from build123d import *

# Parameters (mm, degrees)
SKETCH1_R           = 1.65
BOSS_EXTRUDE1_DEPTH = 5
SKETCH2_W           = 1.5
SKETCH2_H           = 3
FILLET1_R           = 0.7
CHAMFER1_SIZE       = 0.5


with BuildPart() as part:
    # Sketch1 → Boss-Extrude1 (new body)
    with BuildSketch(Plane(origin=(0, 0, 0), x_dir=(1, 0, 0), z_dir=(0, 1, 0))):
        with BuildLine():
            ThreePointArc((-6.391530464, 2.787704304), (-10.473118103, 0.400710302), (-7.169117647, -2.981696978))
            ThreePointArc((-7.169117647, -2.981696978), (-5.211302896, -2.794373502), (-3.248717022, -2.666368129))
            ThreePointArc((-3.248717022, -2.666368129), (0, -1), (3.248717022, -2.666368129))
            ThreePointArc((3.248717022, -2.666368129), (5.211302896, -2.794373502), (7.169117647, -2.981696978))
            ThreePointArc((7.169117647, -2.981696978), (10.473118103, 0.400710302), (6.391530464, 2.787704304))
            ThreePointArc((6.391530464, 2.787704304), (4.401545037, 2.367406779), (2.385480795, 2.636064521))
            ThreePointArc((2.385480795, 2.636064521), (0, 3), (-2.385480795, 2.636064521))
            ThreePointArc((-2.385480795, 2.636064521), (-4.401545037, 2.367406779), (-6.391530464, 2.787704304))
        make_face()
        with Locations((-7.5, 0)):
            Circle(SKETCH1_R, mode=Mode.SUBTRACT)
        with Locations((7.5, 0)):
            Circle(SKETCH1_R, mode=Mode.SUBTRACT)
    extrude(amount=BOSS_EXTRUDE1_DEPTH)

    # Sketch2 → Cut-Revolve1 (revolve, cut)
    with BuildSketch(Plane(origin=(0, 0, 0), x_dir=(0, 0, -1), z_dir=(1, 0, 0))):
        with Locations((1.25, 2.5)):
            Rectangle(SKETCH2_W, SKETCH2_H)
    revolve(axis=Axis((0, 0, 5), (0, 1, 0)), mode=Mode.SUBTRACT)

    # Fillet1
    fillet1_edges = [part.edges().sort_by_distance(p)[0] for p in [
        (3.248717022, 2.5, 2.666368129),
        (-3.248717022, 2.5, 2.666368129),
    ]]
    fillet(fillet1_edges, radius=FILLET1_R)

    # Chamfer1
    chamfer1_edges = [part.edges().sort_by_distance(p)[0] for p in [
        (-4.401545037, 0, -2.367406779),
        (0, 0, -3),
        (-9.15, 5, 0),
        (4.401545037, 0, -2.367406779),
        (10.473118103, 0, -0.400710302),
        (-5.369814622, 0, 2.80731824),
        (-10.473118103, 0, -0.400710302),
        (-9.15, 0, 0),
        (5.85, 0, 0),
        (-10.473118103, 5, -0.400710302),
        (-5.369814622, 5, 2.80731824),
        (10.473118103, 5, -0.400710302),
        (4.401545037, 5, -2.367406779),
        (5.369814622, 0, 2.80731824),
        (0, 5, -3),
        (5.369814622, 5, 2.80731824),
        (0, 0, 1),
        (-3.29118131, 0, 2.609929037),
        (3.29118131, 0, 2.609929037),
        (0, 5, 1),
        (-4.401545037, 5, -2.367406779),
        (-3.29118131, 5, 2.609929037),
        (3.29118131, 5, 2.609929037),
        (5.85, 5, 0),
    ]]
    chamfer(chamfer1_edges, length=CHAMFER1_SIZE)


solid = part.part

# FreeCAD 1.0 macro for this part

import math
import FreeCAD as App
import Part
import Sketcher

V = App.Vector


def edges_at(feature, points):
    """Names of the edges that pass closest to the given points."""
    edges = feature.Shape.Edges
    near = lambda p: min(range(len(edges)), key=lambda i: edges[i].distToShape(Part.Vertex(*p))[0])
    return sorted({f"Edge{near(p) + 1}" for p in points})

doc = App.newDocument("Part")
params = doc.addObject("Spreadsheet::Sheet", "Params")
for row, (alias, value) in enumerate([
    ("sketch1_radius", "3 mm"),
    ("sketch1_radius2", "65.000001 mm"),
    ("sketch1_radius3", "4 mm"),
    ("sketch1_radius4", "6 mm"),
    ("sketch1_radius5", "8 mm"),
    ("pad1_length", "5 mm"),
    ("sketch2_width", "3 mm"),
    ("sketch2_height", "1.5 mm"),
    ("groove_angle", "360 deg"),
    ("fillet_radius", "0.7 mm"),
    ("chamfer_size", "0.5 mm"),
], start=1):
    params.set(f"A{row}", alias)
    params.set(f"B{row}", "=" + value)
    params.setAlias(f"B{row}", alias)

body = doc.addObject("PartDesign::Body", "Body")

sketch1 = body.newObject("Sketcher::SketchObject", "Sketch")
sketch1.AttachmentSupport = (doc.getObject("XZ_Plane"), [""])
sketch1.MapMode = "FlatFace"
sketch1.addGeometry(Part.ArcOfCircle(Part.Circle(V(-7.5, 0, 0), V(0, 0, 1), 3), math.radians(83.66773), math.radians(291.684158)), False)
sketch1.addGeometry(Part.ArcOfCircle(Part.Circle(V(0, 67.585133, 0), V(0, 0, 1), 65.000001), math.radians(-96.33227), math.radians(-92.864852)), False)
sketch1.addGeometry(Part.ArcOfCircle(Part.Circle(V(0, 5, 0), V(0, 0, 1), 4), math.radians(-144.3094), math.radians(-35.6906)), False)
sketch1.addGeometry(Part.ArcOfCircle(Part.Circle(V(0, 67.585133, 0), V(0, 0, 1), 65.000001), math.radians(-87.135148), math.radians(-83.66773)), False)
sketch1.addGeometry(Part.ArcOfCircle(Part.Circle(V(7.5, 0, 0), V(0, 0, 1), 3), math.radians(-111.684158), math.radians(96.33227)), False)
sketch1.addGeometry(Part.ArcOfCircle(Part.Circle(V(4.174591, -8.363113, 0), V(0, 0, 1), 6), math.radians(68.315842), math.radians(107.348629)), False)
sketch1.addGeometry(Part.ArcOfCircle(Part.Circle(V(0, 5, 0), V(0, 0, 1), 8), math.radians(-107.348629), math.radians(-72.651371)), False)
sketch1.addGeometry(Part.ArcOfCircle(Part.Circle(V(-4.174591, -8.363113, 0), V(0, 0, 1), 6), math.radians(72.651371), math.radians(111.684158)), False)
sketch1.addGeometry(Part.Circle(V(-7.5, 0, 0), V(0, 0, 1), 1.65), False)
sketch1.addGeometry(Part.Circle(V(7.5, 0, 0), V(0, 0, 1), 1.65), False)
sketch1.addConstraint(Sketcher.Constraint("Tangent", 0, 1, 1, 1))
sketch1.addConstraint(Sketcher.Constraint("Coincident", 1, 2, 2, 1))
sketch1.addConstraint(Sketcher.Constraint("Coincident", 2, 2, 3, 1))
sketch1.addConstraint(Sketcher.Constraint("Tangent", 3, 2, 4, 2))
sketch1.addConstraint(Sketcher.Constraint("Tangent", 4, 1, 5, 1))
sketch1.addConstraint(Sketcher.Constraint("Tangent", 5, 2, 6, 2))
sketch1.addConstraint(Sketcher.Constraint("Tangent", 6, 1, 7, 1))
sketch1.addConstraint(Sketcher.Constraint("Tangent", 7, 2, 0, 2))
sketch1.addConstraint(Sketcher.Constraint("Coincident", 3, 3, 1, 3))
sketch1.addConstraint(Sketcher.Constraint("Coincident", 6, 3, 2, 3))
sketch1.addConstraint(Sketcher.Constraint("Coincident", 8, 3, 0, 3))
sketch1.addConstraint(Sketcher.Constraint("Coincident", 9, 3, 4, 3))
sketch1.addConstraint(Sketcher.Constraint("Equal", 1, 3))
sketch1.addConstraint(Sketcher.Constraint("Equal", 0, 4))
sketch1.addConstraint(Sketcher.Constraint("Equal", 5, 7))
sketch1.addConstraint(Sketcher.Constraint("Equal", 8, 9))
sketch1.addConstraint(Sketcher.Constraint("Symmetric", 0, 3, 4, 3, -1, 1))
sketch1.addConstraint(Sketcher.Constraint("Symmetric", 5, 3, 7, 3, -2))
sketch1.addConstraint(Sketcher.Constraint("Radius", 0, 3.0))
sketch1.addConstraint(Sketcher.Constraint("Radius", 1, 65.000001))
sketch1.addConstraint(Sketcher.Constraint("Radius", 2, 4.0))
sketch1.addConstraint(Sketcher.Constraint("Radius", 5, 6.0))
sketch1.addConstraint(Sketcher.Constraint("Radius", 6, 8.0))
sketch1.addConstraint(Sketcher.Constraint("Diameter", 8, 3.3))
sketch1.addConstraint(Sketcher.Constraint("DistanceY", -1, 1, 2, 3, 5.0))
sketch1.addConstraint(Sketcher.Constraint("DistanceX", 0, 3, 4, 3, 15.0))
sketch1.setExpression("Constraints[18]", "Params.sketch1_radius")
sketch1.setExpression("Constraints[19]", "Params.sketch1_radius2")
sketch1.setExpression("Constraints[20]", "Params.sketch1_radius3")
sketch1.setExpression("Constraints[21]", "Params.sketch1_radius4")
sketch1.setExpression("Constraints[22]", "Params.sketch1_radius5")
pad1 = body.newObject("PartDesign::Pad", "Pad")
pad1.Profile = sketch1
pad1.setExpression("Length", "Params.pad1_length")
pad1.Reversed = True

sketch2 = body.newObject("Sketcher::SketchObject", "Sketch001")
sketch2.AttachmentSupport = (doc.getObject("YZ_Plane"), [""])
sketch2.MapMode = "FlatFace"
sketch2.addGeometry(Part.LineSegment(V(4, -0.5, 0), V(1, -0.5, 0)), False)
sketch2.addGeometry(Part.LineSegment(V(1, -0.5, 0), V(1, -2, 0)), False)
sketch2.addGeometry(Part.LineSegment(V(1, -2, 0), V(4, -2, 0)), False)
sketch2.addGeometry(Part.LineSegment(V(4, -2, 0), V(4, -0.5, 0)), False)
sketch2.addGeometry(Part.LineSegment(V(1, 5, 0), V(4, 5, 0)), True)
sketch2.addConstraint(Sketcher.Constraint("Coincident", 0, 2, 1, 1))
sketch2.addConstraint(Sketcher.Constraint("Coincident", 1, 2, 2, 1))
sketch2.addConstraint(Sketcher.Constraint("Coincident", 2, 2, 3, 1))
sketch2.addConstraint(Sketcher.Constraint("Coincident", 3, 2, 0, 1))
sketch2.addConstraint(Sketcher.Constraint("Horizontal", 0))
sketch2.addConstraint(Sketcher.Constraint("Vertical", 1))
sketch2.addConstraint(Sketcher.Constraint("Horizontal", 2))
sketch2.addConstraint(Sketcher.Constraint("Vertical", 3))
sketch2.addConstraint(Sketcher.Constraint("Horizontal", 4))
sketch2.addConstraint(Sketcher.Constraint("Vertical", 1, 2, 4, 1))
sketch2.addConstraint(Sketcher.Constraint("Vertical", 3, 2, 4, 2))
sketch2.addConstraint(Sketcher.Constraint("DistanceX", 0, 2, 0, 1, 3.0))
sketch2.addConstraint(Sketcher.Constraint("DistanceY", 1, 2, 1, 1, 1.5))
sketch2.addConstraint(Sketcher.Constraint("DistanceX", -1, 1, 0, 2, 1.0))
sketch2.addConstraint(Sketcher.Constraint("DistanceY", 1, 2, -1, 1, 2.0))
sketch2.addConstraint(Sketcher.Constraint("DistanceY", -1, 1, 4, 1, 5.0))
sketch2.setExpression("Constraints[11]", "Params.sketch2_width")
sketch2.setExpression("Constraints[12]", "Params.sketch2_height")
groove = body.newObject("PartDesign::Groove", "Groove")
groove.Profile = sketch2
groove.ReferenceAxis = (sketch2, ["Axis0"])
groove.setExpression("Angle", "Params.groove_angle")
doc.recompute()

fillet = body.newObject("PartDesign::Fillet", "Fillet")
fillet.Base = (groove, edges_at(groove, [(3.249, 2.5, 2.666), (-3.249, 2.5, 2.666)]))
fillet.setExpression("Radius", "Params.fillet_radius")
doc.recompute()

chamfer = body.newObject("PartDesign::Chamfer", "Chamfer")
chamfer.Base = (fillet, edges_at(fillet, [
    (-4.402, 0, -2.367),
    (0, 0, -3),
    (-9.15, 5, 0),
    (4.402, 0, -2.367),
    (10.473, 0, -0.401),
    (-5.37, 0, 2.807),
    (-10.473, 0, -0.401),
    (-9.15, 0, 0),
    (5.85, 0, 0),
    (-10.473, 5, -0.401),
    (-5.37, 5, 2.807),
    (10.473, 5, -0.401),
    (4.402, 5, -2.367),
    (5.37, 0, 2.807),
    (0, 5, -3),
    (5.37, 5, 2.807),
    (0, 0, 1),
    (-3.291, 0, 2.61),
    (3.291, 0, 2.61),
    (0, 5, 1),
    (-4.402, 5, -2.367),
    (-3.291, 5, 2.61),
    (3.291, 5, 2.61),
    (5.85, 5, 0),
]))
chamfer.setExpression("Size", "Params.chamfer_size")

doc.recompute()
